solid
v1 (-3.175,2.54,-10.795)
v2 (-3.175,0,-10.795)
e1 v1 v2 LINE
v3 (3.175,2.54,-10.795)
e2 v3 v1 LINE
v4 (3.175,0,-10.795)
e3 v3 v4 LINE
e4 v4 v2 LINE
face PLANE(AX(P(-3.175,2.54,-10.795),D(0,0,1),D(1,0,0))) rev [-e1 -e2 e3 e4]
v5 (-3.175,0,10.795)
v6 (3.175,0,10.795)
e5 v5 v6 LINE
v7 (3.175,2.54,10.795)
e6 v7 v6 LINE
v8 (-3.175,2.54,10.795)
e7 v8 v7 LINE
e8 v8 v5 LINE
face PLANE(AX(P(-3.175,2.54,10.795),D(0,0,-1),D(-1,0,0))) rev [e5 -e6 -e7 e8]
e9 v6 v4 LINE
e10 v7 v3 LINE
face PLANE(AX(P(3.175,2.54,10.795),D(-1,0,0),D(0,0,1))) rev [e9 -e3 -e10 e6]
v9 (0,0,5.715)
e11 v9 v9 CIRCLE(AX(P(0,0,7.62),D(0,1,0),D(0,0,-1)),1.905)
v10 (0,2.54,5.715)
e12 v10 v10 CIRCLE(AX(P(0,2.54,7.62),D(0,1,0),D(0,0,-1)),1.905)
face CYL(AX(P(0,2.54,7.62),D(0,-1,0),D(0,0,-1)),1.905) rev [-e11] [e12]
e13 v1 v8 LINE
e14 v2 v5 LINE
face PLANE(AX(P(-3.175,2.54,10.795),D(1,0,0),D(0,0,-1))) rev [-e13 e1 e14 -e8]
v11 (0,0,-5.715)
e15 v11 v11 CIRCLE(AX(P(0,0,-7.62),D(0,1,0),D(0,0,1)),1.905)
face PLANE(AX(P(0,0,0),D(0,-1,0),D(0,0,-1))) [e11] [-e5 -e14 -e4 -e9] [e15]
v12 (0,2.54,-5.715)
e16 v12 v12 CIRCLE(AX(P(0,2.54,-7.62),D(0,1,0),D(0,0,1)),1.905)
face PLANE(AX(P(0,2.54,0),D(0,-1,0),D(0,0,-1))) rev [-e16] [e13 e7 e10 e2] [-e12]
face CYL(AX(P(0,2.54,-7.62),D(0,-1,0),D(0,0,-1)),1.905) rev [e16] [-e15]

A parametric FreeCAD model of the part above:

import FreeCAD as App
import Part
import Sketcher

V = App.Vector
Q = App.Units.Quantity

doc = App.newDocument("Part")
body = doc.addObject("PartDesign::Body", "Body")

# Sketch on XZ plane
sketch1 = body.newObject("Sketcher::SketchObject", "Sketch")
sketch1.AttachmentSupport = (doc.getObject("XZ_Plane"), [""])
sketch1.MapMode = "FlatFace"
sketch1.addGeometry([
    Part.LineSegment(V(-3.175, -10.795, 0), V(-3.175, 10.795, 0)),  # 0
    Part.LineSegment(V(-3.175, 10.795, 0), V(3.175, 10.795, 0)),  # 1
    Part.LineSegment(V(3.175, 10.795, 0), V(3.175, -10.795, 0)),  # 2
    Part.LineSegment(V(3.175, -10.795, 0), V(-3.175, -10.795, 0)),  # 3
    Part.Circle(V(0, 7.62, 0), V(0, 0, 1), 1.905),  # 4
    Part.Circle(V(0, -7.62, 0), V(0, 0, 1), 1.905),  # 5
], False)
sketch1.addConstraint([
    Sketcher.Constraint("Coincident", 0, 2, 1, 1),
    Sketcher.Constraint("Coincident", 1, 2, 2, 1),
    Sketcher.Constraint("Coincident", 2, 2, 3, 1),
    Sketcher.Constraint("Coincident", 3, 2, 0, 1),
    Sketcher.Constraint("Vertical", 0),
    Sketcher.Constraint("Horizontal", 1),
    Sketcher.Constraint("Vertical", 2),
    Sketcher.Constraint("Horizontal", 3),
    Sketcher.Constraint("Equal", 4, 5),
    Sketcher.Constraint("Symmetric", 4, 3, 5, 3, -1, 1),
    Sketcher.Constraint("Symmetric", 0, 2, 2, 2, -1, 1),
    Sketcher.Constraint("PointOnObject", 4, 3, -2),
    Sketcher.Constraint("Diameter", 4, Q("0.15 in")),
    Sketcher.Constraint("DistanceX", 1, 1, 1, 2, Q("0.25 in")),
    Sketcher.Constraint("DistanceY", 0, 1, 0, 2, Q("0.85 in")),
    Sketcher.Constraint("DistanceY", -1, 1, 4, 3, Q("0.3 in")),
])
pad1 = body.newObject("PartDesign::Pad", "Pad")
pad1.Profile = sketch1
pad1.Length = Q("0.1 in")
pad1.Reversed = True

doc.recompute()
